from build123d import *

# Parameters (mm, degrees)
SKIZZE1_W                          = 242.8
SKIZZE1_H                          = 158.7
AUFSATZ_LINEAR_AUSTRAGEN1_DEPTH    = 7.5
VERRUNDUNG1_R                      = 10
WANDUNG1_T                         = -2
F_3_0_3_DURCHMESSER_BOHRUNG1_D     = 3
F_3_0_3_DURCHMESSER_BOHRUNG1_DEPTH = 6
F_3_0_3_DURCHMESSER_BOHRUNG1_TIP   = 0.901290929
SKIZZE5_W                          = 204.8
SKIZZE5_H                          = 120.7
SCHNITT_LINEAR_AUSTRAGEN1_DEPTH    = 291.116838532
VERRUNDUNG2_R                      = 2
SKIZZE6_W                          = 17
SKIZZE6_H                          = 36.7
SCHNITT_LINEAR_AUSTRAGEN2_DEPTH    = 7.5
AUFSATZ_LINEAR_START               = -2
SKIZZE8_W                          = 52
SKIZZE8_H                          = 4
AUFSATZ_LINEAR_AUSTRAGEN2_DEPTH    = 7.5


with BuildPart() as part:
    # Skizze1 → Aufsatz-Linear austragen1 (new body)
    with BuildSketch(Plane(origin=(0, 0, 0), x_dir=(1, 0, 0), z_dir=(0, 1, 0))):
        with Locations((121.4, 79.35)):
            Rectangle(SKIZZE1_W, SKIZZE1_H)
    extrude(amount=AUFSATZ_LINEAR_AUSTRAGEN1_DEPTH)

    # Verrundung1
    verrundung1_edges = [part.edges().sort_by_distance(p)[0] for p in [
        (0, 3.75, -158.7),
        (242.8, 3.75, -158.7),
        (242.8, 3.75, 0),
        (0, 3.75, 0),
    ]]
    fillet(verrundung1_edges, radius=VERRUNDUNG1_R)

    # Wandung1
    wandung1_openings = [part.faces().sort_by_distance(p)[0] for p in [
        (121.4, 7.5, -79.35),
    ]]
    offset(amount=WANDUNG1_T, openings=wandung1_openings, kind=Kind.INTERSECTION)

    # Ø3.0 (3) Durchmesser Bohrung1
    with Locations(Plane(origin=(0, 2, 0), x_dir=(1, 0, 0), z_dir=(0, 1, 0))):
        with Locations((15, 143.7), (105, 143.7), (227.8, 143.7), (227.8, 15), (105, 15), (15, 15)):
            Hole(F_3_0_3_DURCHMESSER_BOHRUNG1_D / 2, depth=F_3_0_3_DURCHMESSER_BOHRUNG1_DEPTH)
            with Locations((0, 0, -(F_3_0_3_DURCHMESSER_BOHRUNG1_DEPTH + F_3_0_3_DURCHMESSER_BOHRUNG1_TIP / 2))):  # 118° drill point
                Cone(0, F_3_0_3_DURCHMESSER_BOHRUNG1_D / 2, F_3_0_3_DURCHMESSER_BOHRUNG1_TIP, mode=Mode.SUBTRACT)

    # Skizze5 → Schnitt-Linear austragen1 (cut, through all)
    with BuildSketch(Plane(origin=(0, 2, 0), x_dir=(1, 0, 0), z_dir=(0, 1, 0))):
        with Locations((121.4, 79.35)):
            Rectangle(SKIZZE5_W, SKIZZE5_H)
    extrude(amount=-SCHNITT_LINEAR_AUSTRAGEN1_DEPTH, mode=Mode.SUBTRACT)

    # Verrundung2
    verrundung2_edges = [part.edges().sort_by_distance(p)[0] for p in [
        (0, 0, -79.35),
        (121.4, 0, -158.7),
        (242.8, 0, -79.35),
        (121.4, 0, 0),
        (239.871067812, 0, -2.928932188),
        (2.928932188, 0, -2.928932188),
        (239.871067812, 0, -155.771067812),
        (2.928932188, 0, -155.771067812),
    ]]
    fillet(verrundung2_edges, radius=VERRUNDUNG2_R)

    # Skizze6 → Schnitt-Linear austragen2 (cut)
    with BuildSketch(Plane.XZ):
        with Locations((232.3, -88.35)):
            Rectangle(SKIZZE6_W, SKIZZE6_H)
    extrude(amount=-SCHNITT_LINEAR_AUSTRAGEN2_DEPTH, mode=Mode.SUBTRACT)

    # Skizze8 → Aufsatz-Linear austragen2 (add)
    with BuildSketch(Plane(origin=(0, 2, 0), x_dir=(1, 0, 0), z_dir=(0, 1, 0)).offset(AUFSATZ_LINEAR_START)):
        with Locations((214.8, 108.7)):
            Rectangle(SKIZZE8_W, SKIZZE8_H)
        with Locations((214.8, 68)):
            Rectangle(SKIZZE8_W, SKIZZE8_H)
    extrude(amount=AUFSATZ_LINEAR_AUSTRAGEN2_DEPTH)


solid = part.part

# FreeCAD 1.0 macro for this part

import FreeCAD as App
import Part
import Sketcher

V = App.Vector
Q = App.Units.Quantity


def edges_at(feature, points):
    """Names of the edges that pass closest to the given points."""
    edges = feature.Shape.Edges
    near = lambda p: min(range(len(edges)), key=lambda i: edges[i].distToShape(Part.Vertex(*p))[0])
    return sorted({f"Edge{near(p) + 1}" for p in points})


def faces_at(feature, points):
    """Names of the faces that lie closest to the given points."""
    faces = feature.Shape.Faces
    near = lambda p: min(range(len(faces)), key=lambda i: faces[i].distToShape(Part.Vertex(*p))[0])
    return sorted({f"Face{near(p) + 1}" for p in points})


def add_polygon(sketch, points):
    """Adds a closed chain of lines whose ends are joined by coincident constraints."""
    first, n = sketch.GeometryCount, len(points)
    for a, b in zip(points, points[1:] + points[:1]):
        sketch.addGeometry(Part.LineSegment(App.Vector(*a, 0), App.Vector(*b, 0)), False)
    for i in range(n):
        sketch.addConstraint(Sketcher.Constraint("Coincident", first + i, 2, first + (i + 1) % n, 1))

doc = App.newDocument("Part")
body = doc.addObject("PartDesign::Body", "Body")

sketch1 = body.newObject("Sketcher::SketchObject", "Sketch")
sketch1.AttachmentSupport = (doc.getObject("XZ_Plane"), [""])
sketch1.MapMode = "FlatFace"
add_polygon(sketch1, [(0, -159), (0, 0), (243, 0), (243, -159)])
sketch1.addConstraint([
    Sketcher.Constraint("Vertical", 0),
    Sketcher.Constraint("Horizontal", 1),
    Sketcher.Constraint("Vertical", 2),
    Sketcher.Constraint("Horizontal", 3),
    Sketcher.Constraint("Coincident", 0, 2, -1, 1),
    Sketcher.Constraint("DistanceX", 1, 1, 1, 2, Q("242.8 mm")),
    Sketcher.Constraint("DistanceY", 0, 1, 0, 2, Q("158.7 mm")),
])
pad1 = body.newObject("PartDesign::Pad", "Pad")
pad1.Profile = sketch1
pad1.Length = 7.5
pad1.Reversed = True
doc.recompute()

fillet = body.newObject("PartDesign::Fillet", "Fillet")
fillet.Base = (pad1, edges_at(pad1, [
    (0, 3.75, -158.7),
    (242.8, 3.75, -158.7),
    (242.8, 3.75, 0),
    (0, 3.75, 0),
]))
fillet.Radius = 10
doc.recompute()

thickness = body.newObject("PartDesign::Thickness", "Thickness")
thickness.Base = (fillet, faces_at(fillet, [(121.4, 7.5, -79.35)]))
thickness.Value = 2
thickness.Reversed = True
thickness.Join = "Intersection"

sketch2 = body.newObject("Sketcher::SketchObject", "Sketch001")
sketch2.AttachmentSupport = (doc.getObject("XZ_Plane"), [""])
sketch2.MapMode = "FlatFace"
sketch2.AttachmentOffset = App.Placement(V(0, 0, -2), App.Rotation())
sketch2.addGeometry([
    Part.Circle(V(15, -143.7, 0), V(0, 0, 1), 1.5),
    Part.Circle(V(105, -143.7, 0), V(0, 0, 1), 1.5),
    Part.Circle(V(227.8, -143.7, 0), V(0, 0, 1), 1.5),
    Part.Circle(V(227.8, -15, 0), V(0, 0, 1), 1.5),
    Part.Circle(V(105, -15, 0), V(0, 0, 1), 1.5),
    Part.Circle(V(15, -15, 0), V(0, 0, 1), 1.5),
], False)
sketch2.addConstraint([
    Sketcher.Constraint("Equal", 0, 1),
    Sketcher.Constraint("Equal", 1, 2),
    Sketcher.Constraint("Equal", 2, 3),
    Sketcher.Constraint("Equal", 3, 4),
    Sketcher.Constraint("Equal", 4, 5),
    Sketcher.Constraint("Horizontal", 0, 3, 1, 3),
    Sketcher.Constraint("Horizontal", 1, 3, 2, 3),
    Sketcher.Constraint("Horizontal", 3, 3, 4, 3),
    Sketcher.Constraint("Horizontal", 4, 3, 5, 3),
    Sketcher.Constraint("Vertical", 2, 3, 3, 3),
    Sketcher.Constraint("Vertical", 1, 3, 4, 3),
    Sketcher.Constraint("Vertical", 0, 3, 5, 3),
    Sketcher.Constraint("Diameter", 0, Q("3 mm")),
    Sketcher.Constraint("DistanceX", -1, 1, 0, 3, Q("15 mm")),
    Sketcher.Constraint("DistanceX", -1, 1, 1, 3, Q("105 mm")),
    Sketcher.Constraint("DistanceY", 3, 3, -1, 1, Q("15 mm")),
    Sketcher.Constraint("DistanceY", 0, 3, -1, 1, Q("143.7 mm")),
    Sketcher.Constraint("DistanceX", -1, 1, 2, 3, Q("227.8 mm")),
])
doc.recompute()
hole = body.newObject("PartDesign::Hole", "Hole")
hole.Profile = sketch2
hole.ThreadType = "None"
hole.Diameter = 3
hole.DepthType = "Dimension"
hole.Depth = 6
hole.DrillPoint = "Angled"
hole.DrillPointAngle = 118
hole.Reversed = True

sketch3 = body.newObject("Sketcher::SketchObject", "Sketch002")
sketch3.AttachmentSupport = (doc.getObject("XZ_Plane"), [""])
sketch3.MapMode = "FlatFace"
sketch3.AttachmentOffset = App.Placement(V(0, 0, -2), App.Rotation())
add_polygon(sketch3, [(19, -140), (19, -19), (224, -19), (224, -140)])
sketch3.addConstraint([
    Sketcher.Constraint("Vertical", 0),
    Sketcher.Constraint("Horizontal", 1),
    Sketcher.Constraint("Vertical", 2),
    Sketcher.Constraint("Horizontal", 3),
    Sketcher.Constraint("DistanceX", 1, 1, 1, 2, Q("204.8 mm")),
    Sketcher.Constraint("DistanceY", 0, 1, 0, 2, Q("120.7 mm")),
    Sketcher.Constraint("DistanceX", -1, 1, 0, 2, Q("19 mm")),
    Sketcher.Constraint("DistanceY", 0, 2, -1, 1, Q("19 mm")),
])
pocket1 = body.newObject("PartDesign::Pocket", "Pocket")
pocket1.Profile = sketch3
pocket1.Type = "ThroughAll"
pocket1.Reversed = True
doc.recompute()

fillet2 = body.newObject("PartDesign::Fillet", "Fillet001")
fillet2.Base = (pocket1, edges_at(pocket1, [
    (0, 0, -79.35),
    (121.4, 0, -158.7),
    (242.8, 0, -79.35),
    (121.4, 0, 0),
    (239.871, 0, -2.929),
    (2.929, 0, -2.929),
    (239.871, 0, -155.771),
    (2.929, 0, -155.771),
]))
fillet2.Radius = 2

sketch4 = body.newObject("Sketcher::SketchObject", "Sketch003")
sketch4.AttachmentSupport = (doc.getObject("XZ_Plane"), [""])
sketch4.MapMode = "FlatFace"
add_polygon(sketch4, [(224, -70), (224, -107), (241, -107), (241, -70)])
sketch4.addConstraint([
    Sketcher.Constraint("Vertical", 0),
    Sketcher.Constraint("Horizontal", 1),
    Sketcher.Constraint("Vertical", 2),
    Sketcher.Constraint("Horizontal", 3),
    Sketcher.Constraint("DistanceX", 1, 1, 1, 2, Q("17 mm")),
    Sketcher.Constraint("DistanceY", 0, 2, 0, 1, Q("36.7 mm")),
    Sketcher.Constraint("DistanceY", 2, 2, -1, 1, Q("70 mm")),
    Sketcher.Constraint("DistanceX", -1, 1, 0, 2, Q("223.8 mm")),
])
pocket2 = body.newObject("PartDesign::Pocket", "Pocket001")
pocket2.Profile = sketch4
pocket2.Length = 7.5

sketch5 = body.newObject("Sketcher::SketchObject", "Sketch004")
sketch5.AttachmentSupport = (doc.getObject("XZ_Plane"), [""])
sketch5.MapMode = "FlatFace"
add_polygon(sketch5, [(188.8, -110.7), (188.8, -106.7), (240.8, -106.7), (240.8, -110.7)])
add_polygon(sketch5, [(188.8, -70), (188.8, -66), (240.8, -66), (240.8, -70)])
sketch5.addConstraint([
    Sketcher.Constraint("Vertical", 0),
    Sketcher.Constraint("Horizontal", 1),
    Sketcher.Constraint("Vertical", 2),
    Sketcher.Constraint("Horizontal", 3),
    Sketcher.Constraint("Vertical", 4),
    Sketcher.Constraint("Horizontal", 5),
    Sketcher.Constraint("Vertical", 6),
    Sketcher.Constraint("Horizontal", 7),
    Sketcher.Constraint("Vertical", 3, 2, 4, 2),
    Sketcher.Constraint("Vertical", 2, 2, 5, 2),
    Sketcher.Constraint("Equal", 2, 4),
    Sketcher.Constraint("DistanceX", 1, 1, 1, 2, Q("52 mm")),
    Sketcher.Constraint("DistanceY", 0, 1, 0, 2, Q("4 mm")),
    Sketcher.Constraint("DistanceY", 4, 2, -1, 1, Q("66 mm")),
    Sketcher.Constraint("DistanceX", -1, 1, 0, 2, Q("188.8 mm")),
    Sketcher.Constraint("DistanceY", 0, 2, -1, 1, Q("106.7 mm")),
])
pad2 = body.newObject("PartDesign::Pad", "Pad001")
pad2.Profile = sketch5
pad2.Length = 7.5
pad2.Reversed = True

doc.recompute()
